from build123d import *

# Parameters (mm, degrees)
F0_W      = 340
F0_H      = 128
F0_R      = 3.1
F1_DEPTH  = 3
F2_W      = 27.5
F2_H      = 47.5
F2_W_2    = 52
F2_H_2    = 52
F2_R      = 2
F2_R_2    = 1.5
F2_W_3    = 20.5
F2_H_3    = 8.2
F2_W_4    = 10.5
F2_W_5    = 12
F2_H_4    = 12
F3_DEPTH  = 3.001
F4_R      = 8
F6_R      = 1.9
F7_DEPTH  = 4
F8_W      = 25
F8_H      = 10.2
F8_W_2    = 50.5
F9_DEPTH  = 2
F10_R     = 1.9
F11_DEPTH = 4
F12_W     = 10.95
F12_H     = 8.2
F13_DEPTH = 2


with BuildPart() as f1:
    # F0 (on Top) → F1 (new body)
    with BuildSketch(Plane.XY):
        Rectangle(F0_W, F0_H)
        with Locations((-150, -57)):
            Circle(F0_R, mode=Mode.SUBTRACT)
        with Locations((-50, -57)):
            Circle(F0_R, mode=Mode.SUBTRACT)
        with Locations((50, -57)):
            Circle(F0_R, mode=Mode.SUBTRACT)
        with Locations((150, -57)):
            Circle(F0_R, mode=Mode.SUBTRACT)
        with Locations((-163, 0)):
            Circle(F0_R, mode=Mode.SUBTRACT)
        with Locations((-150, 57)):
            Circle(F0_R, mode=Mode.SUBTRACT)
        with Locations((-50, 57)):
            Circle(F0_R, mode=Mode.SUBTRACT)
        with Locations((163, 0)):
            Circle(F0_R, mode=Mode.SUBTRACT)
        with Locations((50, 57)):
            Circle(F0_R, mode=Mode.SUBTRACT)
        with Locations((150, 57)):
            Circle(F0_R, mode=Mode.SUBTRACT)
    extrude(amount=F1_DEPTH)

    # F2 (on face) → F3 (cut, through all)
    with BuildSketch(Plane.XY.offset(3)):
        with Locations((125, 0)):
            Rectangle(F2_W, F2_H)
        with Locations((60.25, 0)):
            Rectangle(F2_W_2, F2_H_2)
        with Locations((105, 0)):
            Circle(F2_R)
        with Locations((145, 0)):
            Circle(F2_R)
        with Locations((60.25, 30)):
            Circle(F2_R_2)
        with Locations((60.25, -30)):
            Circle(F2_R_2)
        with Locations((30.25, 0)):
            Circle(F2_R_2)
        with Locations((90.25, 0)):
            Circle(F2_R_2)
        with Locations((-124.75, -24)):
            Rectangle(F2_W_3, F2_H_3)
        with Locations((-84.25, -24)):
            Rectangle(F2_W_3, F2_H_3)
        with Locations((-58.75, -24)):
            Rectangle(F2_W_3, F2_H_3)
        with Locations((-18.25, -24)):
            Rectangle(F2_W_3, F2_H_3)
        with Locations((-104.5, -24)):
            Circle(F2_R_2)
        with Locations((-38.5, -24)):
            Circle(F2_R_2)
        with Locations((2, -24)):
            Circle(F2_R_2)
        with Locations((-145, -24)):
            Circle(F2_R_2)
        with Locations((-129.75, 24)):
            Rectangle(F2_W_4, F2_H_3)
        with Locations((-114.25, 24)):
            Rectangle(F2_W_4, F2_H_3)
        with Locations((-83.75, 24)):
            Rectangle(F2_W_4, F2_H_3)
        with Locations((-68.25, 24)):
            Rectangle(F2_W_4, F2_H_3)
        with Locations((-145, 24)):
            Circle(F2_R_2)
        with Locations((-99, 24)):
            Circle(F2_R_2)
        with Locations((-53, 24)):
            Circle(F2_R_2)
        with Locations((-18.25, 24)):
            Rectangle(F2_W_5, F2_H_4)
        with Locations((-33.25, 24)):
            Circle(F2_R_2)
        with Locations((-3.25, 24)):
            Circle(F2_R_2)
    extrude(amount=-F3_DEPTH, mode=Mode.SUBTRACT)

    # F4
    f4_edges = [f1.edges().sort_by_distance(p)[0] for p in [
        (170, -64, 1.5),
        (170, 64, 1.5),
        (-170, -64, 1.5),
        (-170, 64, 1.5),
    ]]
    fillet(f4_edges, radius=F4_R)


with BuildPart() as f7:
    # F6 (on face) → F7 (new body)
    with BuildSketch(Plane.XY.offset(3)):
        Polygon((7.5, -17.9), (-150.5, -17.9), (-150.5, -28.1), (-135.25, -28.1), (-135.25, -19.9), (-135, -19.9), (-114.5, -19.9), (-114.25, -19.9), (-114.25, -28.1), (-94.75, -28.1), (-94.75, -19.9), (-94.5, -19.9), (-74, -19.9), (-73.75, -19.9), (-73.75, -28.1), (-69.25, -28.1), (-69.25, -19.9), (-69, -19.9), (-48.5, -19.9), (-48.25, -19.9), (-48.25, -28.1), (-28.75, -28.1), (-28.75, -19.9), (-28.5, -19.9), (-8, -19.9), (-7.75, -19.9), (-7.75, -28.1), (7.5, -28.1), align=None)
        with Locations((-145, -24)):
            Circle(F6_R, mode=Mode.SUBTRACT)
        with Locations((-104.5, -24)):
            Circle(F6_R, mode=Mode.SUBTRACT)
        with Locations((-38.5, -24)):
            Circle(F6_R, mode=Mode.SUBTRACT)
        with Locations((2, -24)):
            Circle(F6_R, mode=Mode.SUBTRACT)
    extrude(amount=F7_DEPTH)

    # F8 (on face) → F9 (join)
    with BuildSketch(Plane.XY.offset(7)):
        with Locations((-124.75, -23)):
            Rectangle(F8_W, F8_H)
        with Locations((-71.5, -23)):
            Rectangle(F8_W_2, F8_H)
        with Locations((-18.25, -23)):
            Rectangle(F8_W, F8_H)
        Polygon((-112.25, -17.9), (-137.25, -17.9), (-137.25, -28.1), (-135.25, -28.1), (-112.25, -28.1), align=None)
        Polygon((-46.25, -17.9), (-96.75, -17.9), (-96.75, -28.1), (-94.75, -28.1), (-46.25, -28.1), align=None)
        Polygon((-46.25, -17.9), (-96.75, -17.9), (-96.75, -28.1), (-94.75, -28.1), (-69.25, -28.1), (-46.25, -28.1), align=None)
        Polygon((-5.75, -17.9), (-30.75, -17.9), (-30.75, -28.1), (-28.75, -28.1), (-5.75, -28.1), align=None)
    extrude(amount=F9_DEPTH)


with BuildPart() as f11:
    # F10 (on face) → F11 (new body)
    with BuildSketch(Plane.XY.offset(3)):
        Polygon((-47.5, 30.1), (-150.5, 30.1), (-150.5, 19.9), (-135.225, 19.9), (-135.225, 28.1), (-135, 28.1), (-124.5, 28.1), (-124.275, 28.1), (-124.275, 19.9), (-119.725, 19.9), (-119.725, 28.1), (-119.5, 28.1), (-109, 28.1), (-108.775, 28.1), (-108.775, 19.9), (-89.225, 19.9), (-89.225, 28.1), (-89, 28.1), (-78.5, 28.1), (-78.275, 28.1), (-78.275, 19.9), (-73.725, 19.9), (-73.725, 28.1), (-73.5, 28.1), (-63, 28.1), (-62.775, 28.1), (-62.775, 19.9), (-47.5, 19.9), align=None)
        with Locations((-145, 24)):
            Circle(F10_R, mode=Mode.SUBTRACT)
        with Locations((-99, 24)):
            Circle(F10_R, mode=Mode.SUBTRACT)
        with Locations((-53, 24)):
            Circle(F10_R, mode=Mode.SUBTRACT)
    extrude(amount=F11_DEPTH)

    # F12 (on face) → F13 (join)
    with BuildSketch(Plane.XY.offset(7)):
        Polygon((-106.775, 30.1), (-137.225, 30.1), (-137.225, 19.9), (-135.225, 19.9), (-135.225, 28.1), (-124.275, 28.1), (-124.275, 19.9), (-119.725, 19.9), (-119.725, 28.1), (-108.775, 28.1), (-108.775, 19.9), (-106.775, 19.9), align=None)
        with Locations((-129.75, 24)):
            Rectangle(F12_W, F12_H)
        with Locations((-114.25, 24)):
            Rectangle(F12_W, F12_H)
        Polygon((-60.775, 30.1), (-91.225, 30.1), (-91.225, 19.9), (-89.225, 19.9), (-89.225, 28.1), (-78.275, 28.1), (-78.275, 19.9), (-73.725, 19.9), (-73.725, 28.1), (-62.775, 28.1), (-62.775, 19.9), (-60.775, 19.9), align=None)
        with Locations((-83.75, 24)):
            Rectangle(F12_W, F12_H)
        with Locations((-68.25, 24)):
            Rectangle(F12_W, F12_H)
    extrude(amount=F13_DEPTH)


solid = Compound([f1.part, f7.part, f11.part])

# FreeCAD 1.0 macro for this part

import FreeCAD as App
import Part
import Sketcher

V = App.Vector


def edges_at(feature, points):
    """Names of the edges that pass closest to the given points."""
    edges = feature.Shape.Edges
    near = lambda p: min(range(len(edges)), key=lambda i: edges[i].distToShape(Part.Vertex(*p))[0])
    return sorted({f"Edge{near(p) + 1}" for p in points})


def add_polygon(sketch, points):
    """Adds a closed chain of lines whose ends are joined by coincident constraints."""
    first, n = sketch.GeometryCount, len(points)
    for a, b in zip(points, points[1:] + points[:1]):
        sketch.addGeometry(Part.LineSegment(App.Vector(*a, 0), App.Vector(*b, 0)), False)
    for i in range(n):
        sketch.addConstraint(Sketcher.Constraint("Coincident", first + i, 2, first + (i + 1) % n, 1))

doc = App.newDocument("Part")
body = doc.addObject("PartDesign::Body", "Body")

sketch1 = doc.addObject("Sketcher::SketchObject", "Sketch")
body.addObject(sketch1)
sketch1.AttachmentSupport = (doc.XY_Plane, [""])
sketch1.MapMode = "FlatFace"
add_polygon(sketch1, [(-170, 64), (-170, -64), (170, -64), (170, 64)])
sketch1.addGeometry(Part.Circle(V(-150, -57, 0), V(0, 0, 1), 3.1), False)
sketch1.addGeometry(Part.Circle(V(-50, -57, 0), V(0, 0, 1), 3.1), False)
sketch1.addGeometry(Part.Circle(V(50, -57, 0), V(0, 0, 1), 3.1), False)
sketch1.addGeometry(Part.Circle(V(150, -57, 0), V(0, 0, 1), 3.1), False)
sketch1.addGeometry(Part.Circle(V(-163, 0, 0), V(0, 0, 1), 3.1), False)
sketch1.addGeometry(Part.Circle(V(-150, 57, 0), V(0, 0, 1), 3.1), False)
sketch1.addGeometry(Part.Circle(V(-50, 57, 0), V(0, 0, 1), 3.1), False)
sketch1.addGeometry(Part.Circle(V(163, 0, 0), V(0, 0, 1), 3.1), False)
sketch1.addGeometry(Part.Circle(V(50, 57, 0), V(0, 0, 1), 3.1), False)
sketch1.addGeometry(Part.Circle(V(150, 57, 0), V(0, 0, 1), 3.1), False)
sketch1.addConstraint(Sketcher.Constraint("Vertical", 0))
sketch1.addConstraint(Sketcher.Constraint("Horizontal", 1))
sketch1.addConstraint(Sketcher.Constraint("Vertical", 2))
sketch1.addConstraint(Sketcher.Constraint("Horizontal", 3))
sketch1.addConstraint(Sketcher.Constraint("Equal", 4, 5))
sketch1.addConstraint(Sketcher.Constraint("Equal", 5, 6))
sketch1.addConstraint(Sketcher.Constraint("Equal", 6, 7))
sketch1.addConstraint(Sketcher.Constraint("Equal", 7, 8))
sketch1.addConstraint(Sketcher.Constraint("Equal", 8, 9))
sketch1.addConstraint(Sketcher.Constraint("Equal", 9, 10))
sketch1.addConstraint(Sketcher.Constraint("Equal", 10, 11))
sketch1.addConstraint(Sketcher.Constraint("Equal", 11, 12))
sketch1.addConstraint(Sketcher.Constraint("Equal", 12, 13))
sketch1.addConstraint(Sketcher.Constraint("Symmetric", 7, 3, 9, 3, -1, 1))
sketch1.addConstraint(Sketcher.Constraint("Symmetric", 6, 3, 10, 3, -1, 1))
sketch1.addConstraint(Sketcher.Constraint("Symmetric", 8, 3, 11, 3, -1, 1))
sketch1.addConstraint(Sketcher.Constraint("Symmetric", 5, 3, 12, 3, -1, 1))
sketch1.addConstraint(Sketcher.Constraint("Symmetric", 4, 3, 13, 3, -1, 1))
sketch1.addConstraint(Sketcher.Constraint("Symmetric", 0, 2, 2, 2, -1, 1))
sketch1.addConstraint(Sketcher.Constraint("Symmetric", 5, 3, 6, 3, -2))
sketch1.addConstraint(Sketcher.Constraint("Symmetric", 4, 3, 7, 3, -2))
sketch1.addConstraint(Sketcher.Constraint("PointOnObject", 8, 3, -1))
sketch1.addConstraint(Sketcher.Constraint("Horizontal", 4, 3, 5, 3))
sketch1.addConstraint(Sketcher.Constraint("Diameter", 4, 6.2))
sketch1.addConstraint(Sketcher.Constraint("DistanceX", 1, 1, 1, 2, 340.0))
sketch1.addConstraint(Sketcher.Constraint("DistanceY", 0, 2, 0, 1, 128.0))
sketch1.addConstraint(Sketcher.Constraint("DistanceX", 4, 3, -1, 1, 150.0))
sketch1.addConstraint(Sketcher.Constraint("DistanceY", 4, 3, -1, 1, 57.0))
sketch1.addConstraint(Sketcher.Constraint("DistanceX", 5, 3, -1, 1, 50.0))
sketch1.addConstraint(Sketcher.Constraint("DistanceX", 8, 3, -1, 1, 163.0))
pad1 = doc.addObject("PartDesign::Pad", "Pad")
body.addObject(pad1)
pad1.Profile = sketch1
pad1.Length = 3

sketch2 = doc.addObject("Sketcher::SketchObject", "Sketch001")
body.addObject(sketch2)
sketch2.AttachmentSupport = (doc.XY_Plane, [""])
sketch2.MapMode = "FlatFace"
sketch2.AttachmentOffset = App.Placement(V(0, 0, 3), App.Rotation())
add_polygon(sketch2, [(111.2, 23.8), (111.2, -23.8), (138.8, -23.8), (138.8, 23.8)])
add_polygon(sketch2, [(34.2, 26), (34.2, -26), (86.2, -26), (86.2, 26)])
sketch2.addGeometry(Part.Circle(V(105, 0, 0), V(0, 0, 1), 2), False)
sketch2.addGeometry(Part.Circle(V(145, 0, 0), V(0, 0, 1), 2), False)
sketch2.addGeometry(Part.Circle(V(60.2, 30, 0), V(0, 0, 1), 1.5), False)
sketch2.addGeometry(Part.Circle(V(60.2, -30, 0), V(0, 0, 1), 1.5), False)
sketch2.addGeometry(Part.Circle(V(30.2, 0, 0), V(0, 0, 1), 1.5), False)
sketch2.addGeometry(Part.Circle(V(90.2, 0, 0), V(0, 0, 1), 1.5), False)
add_polygon(sketch2, [(-135, -19.9), (-135, -28.1), (-114.5, -28.1), (-114.5, -19.9)])
add_polygon(sketch2, [(-94.5, -19.9), (-94.5, -28.1), (-74, -28.1), (-74, -19.9)])
add_polygon(sketch2, [(-69, -19.9), (-69, -28.1), (-48.5, -28.1), (-48.5, -19.9)])
add_polygon(sketch2, [(-28.5, -19.9), (-28.5, -28.1), (-8, -28.1), (-8, -19.9)])
sketch2.addGeometry(Part.Circle(V(-104.5, -24, 0), V(0, 0, 1), 1.5), False)
sketch2.addGeometry(Part.Circle(V(-38.5, -24, 0), V(0, 0, 1), 1.5), False)
sketch2.addGeometry(Part.Circle(V(2, -24, 0), V(0, 0, 1), 1.5), False)
sketch2.addGeometry(Part.Circle(V(-145, -24, 0), V(0, 0, 1), 1.5), False)
add_polygon(sketch2, [(-135, 28.1), (-135, 19.9), (-124.5, 19.9), (-124.5, 28.1)])
add_polygon(sketch2, [(-119.5, 28.1), (-119.5, 19.9), (-109, 19.9), (-109, 28.1)])
add_polygon(sketch2, [(-89, 28.1), (-89, 19.9), (-78.5, 19.9), (-78.5, 28.1)])
add_polygon(sketch2, [(-73.5, 28.1), (-73.5, 19.9), (-63, 19.9), (-63, 28.1)])
sketch2.addGeometry(Part.Circle(V(-145, 24, 0), V(0, 0, 1), 1.5), False)
sketch2.addGeometry(Part.Circle(V(-99, 24, 0), V(0, 0, 1), 1.5), False)
sketch2.addGeometry(Part.Circle(V(-53, 24, 0), V(0, 0, 1), 1.5), False)
add_polygon(sketch2, [(-24.2, 30), (-24.2, 18), (-12.2, 18), (-12.2, 30)])
sketch2.addGeometry(Part.Circle(V(-33.2, 24, 0), V(0, 0, 1), 1.5), False)
sketch2.addGeometry(Part.Circle(V(-3.2, 24, 0), V(0, 0, 1), 1.5), False)
sketch2.addConstraint(Sketcher.Constraint("Vertical", 0))
sketch2.addConstraint(Sketcher.Constraint("Horizontal", 1))
sketch2.addConstraint(Sketcher.Constraint("Vertical", 2))
sketch2.addConstraint(Sketcher.Constraint("Horizontal", 3))
sketch2.addConstraint(Sketcher.Constraint("Vertical", 4))
sketch2.addConstraint(Sketcher.Constraint("Horizontal", 5))
sketch2.addConstraint(Sketcher.Constraint("Vertical", 6))
sketch2.addConstraint(Sketcher.Constraint("Horizontal", 7))
sketch2.addConstraint(Sketcher.Constraint("Vertical", 14))
sketch2.addConstraint(Sketcher.Constraint("Horizontal", 15))
sketch2.addConstraint(Sketcher.Constraint("Vertical", 16))
sketch2.addConstraint(Sketcher.Constraint("Horizontal", 17))
sketch2.addConstraint(Sketcher.Constraint("Vertical", 18))
sketch2.addConstraint(Sketcher.Constraint("Horizontal", 19))
sketch2.addConstraint(Sketcher.Constraint("Vertical", 20))
sketch2.addConstraint(Sketcher.Constraint("Horizontal", 21))
sketch2.addConstraint(Sketcher.Constraint("Vertical", 22))
sketch2.addConstraint(Sketcher.Constraint("Horizontal", 23))
sketch2.addConstraint(Sketcher.Constraint("Vertical", 24))
sketch2.addConstraint(Sketcher.Constraint("Horizontal", 25))
sketch2.addConstraint(Sketcher.Constraint("Vertical", 26))
sketch2.addConstraint(Sketcher.Constraint("Horizontal", 27))
sketch2.addConstraint(Sketcher.Constraint("Vertical", 28))
sketch2.addConstraint(Sketcher.Constraint("Horizontal", 29))
sketch2.addConstraint(Sketcher.Constraint("Vertical", 34))
sketch2.addConstraint(Sketcher.Constraint("Horizontal", 35))
sketch2.addConstraint(Sketcher.Constraint("Vertical", 36))
sketch2.addConstraint(Sketcher.Constraint("Horizontal", 37))
sketch2.addConstraint(Sketcher.Constraint("Vertical", 38))
sketch2.addConstraint(Sketcher.Constraint("Horizontal", 39))
sketch2.addConstraint(Sketcher.Constraint("Vertical", 40))
sketch2.addConstraint(Sketcher.Constraint("Horizontal", 41))
sketch2.addConstraint(Sketcher.Constraint("Vertical", 42))
sketch2.addConstraint(Sketcher.Constraint("Horizontal", 43))
sketch2.addConstraint(Sketcher.Constraint("Vertical", 44))
sketch2.addConstraint(Sketcher.Constraint("Horizontal", 45))
sketch2.addConstraint(Sketcher.Constraint("Vertical", 46))
sketch2.addConstraint(Sketcher.Constraint("Horizontal", 47))
sketch2.addConstraint(Sketcher.Constraint("Vertical", 48))
sketch2.addConstraint(Sketcher.Constraint("Horizontal", 49))
sketch2.addConstraint(Sketcher.Constraint("Vertical", 53))
sketch2.addConstraint(Sketcher.Constraint("Horizontal", 54))
sketch2.addConstraint(Sketcher.Constraint("Vertical", 55))
sketch2.addConstraint(Sketcher.Constraint("Horizontal", 56))
sketch2.addConstraint(Sketcher.Constraint("Equal", 8, 9))
sketch2.addConstraint(Sketcher.Constraint("Equal", 10, 11))
sketch2.addConstraint(Sketcher.Constraint("Equal", 11, 12))
sketch2.addConstraint(Sketcher.Constraint("Equal", 12, 13))
sketch2.addConstraint(Sketcher.Constraint("Equal", 13, 30))
sketch2.addConstraint(Sketcher.Constraint("Equal", 30, 31))
sketch2.addConstraint(Sketcher.Constraint("Equal", 31, 32))
sketch2.addConstraint(Sketcher.Constraint("Equal", 32, 33))
sketch2.addConstraint(Sketcher.Constraint("Equal", 33, 50))
sketch2.addConstraint(Sketcher.Constraint("Equal", 50, 51))
sketch2.addConstraint(Sketcher.Constraint("Equal", 51, 52))
sketch2.addConstraint(Sketcher.Constraint("Equal", 52, 57))
sketch2.addConstraint(Sketcher.Constraint("Equal", 57, 58))
sketch2.addConstraint(Sketcher.Constraint("Symmetric", 10, 3, 11, 3, -1))
sketch2.addConstraint(Sketcher.Constraint("Symmetric", 33, 3, 50, 3, -1))
sketch2.addConstraint(Sketcher.Constraint("Symmetric", 17, 2, 34, 2, -1))
sketch2.addConstraint(Sketcher.Constraint("PointOnObject", 8, 3, -1))
sketch2.addConstraint(Sketcher.Constraint("PointOnObject", 9, 3, -1))
sketch2.addConstraint(Sketcher.Constraint("PointOnObject", 12, 3, -1))
sketch2.addConstraint(Sketcher.Constraint("PointOnObject", 13, 3, -1))
sketch2.addConstraint(Sketcher.Constraint("Horizontal", 30, 3, 31, 3))
sketch2.addConstraint(Sketcher.Constraint("Horizontal", 31, 3, 32, 3))
sketch2.addConstraint(Sketcher.Constraint("Horizontal", 32, 3, 33, 3))
sketch2.addConstraint(Sketcher.Constraint("Horizontal", 50, 3, 51, 3))
sketch2.addConstraint(Sketcher.Constraint("Horizontal", 51, 3, 52, 3))
sketch2.addConstraint(Sketcher.Constraint("Horizontal", 52, 3, 57, 3))
sketch2.addConstraint(Sketcher.Constraint("Horizontal", 57, 3, 58, 3))
sketch2.addConstraint(Sketcher.Constraint("Horizontal", 15, 2, 18, 2))
sketch2.addConstraint(Sketcher.Constraint("Horizontal", 17, 2, 20, 2))
sketch2.addConstraint(Sketcher.Constraint("Horizontal", 19, 2, 22, 2))
sketch2.addConstraint(Sketcher.Constraint("Horizontal", 21, 2, 24, 2))
sketch2.addConstraint(Sketcher.Constraint("Horizontal", 23, 2, 26, 2))
sketch2.addConstraint(Sketcher.Constraint("Horizontal", 25, 2, 28, 2))
sketch2.addConstraint(Sketcher.Constraint("Horizontal", 35, 2, 38, 2))
sketch2.addConstraint(Sketcher.Constraint("Horizontal", 37, 2, 40, 2))
sketch2.addConstraint(Sketcher.Constraint("Horizontal", 39, 2, 42, 2))
sketch2.addConstraint(Sketcher.Constraint("Horizontal", 41, 2, 44, 2))
sketch2.addConstraint(Sketcher.Constraint("Horizontal", 43, 2, 46, 2))
sketch2.addConstraint(Sketcher.Constraint("Horizontal", 45, 2, 48, 2))
sketch2.addConstraint(Sketcher.Constraint("Horizontal", 10, 3, 55, 2))
sketch2.addConstraint(Sketcher.Constraint("Equal", 17, 19))
sketch2.addConstraint(Sketcher.Constraint("Equal", 21, 23))
sketch2.addConstraint(Sketcher.Constraint("Equal", 25, 27))
sketch2.addConstraint(Sketcher.Constraint("Equal", 37, 39))
sketch2.addConstraint(Sketcher.Constraint("Equal", 41, 43))
sketch2.addConstraint(Sketcher.Constraint("Equal", 45, 47))
sketch2.addConstraint(Sketcher.Constraint("Equal", 7, 4))
sketch2.addConstraint(Sketcher.Constraint("Equal", 28, 34))
sketch2.addConstraint(Sketcher.Constraint("Equal", 56, 53))
sketch2.addConstraint(Sketcher.Constraint("Diameter", 8, 4.0))
sketch2.addConstraint(Sketcher.Constraint("Diameter", 10, 3.0))
sketch2.addConstraint(Sketcher.Constraint("DistanceX", 5, 1, 5, 2, 52.0))
sketch2.addConstraint(Sketcher.Constraint("DistanceX", 54, 1, 54, 2, 12.0))
sketch2.addConstraint(Sketcher.Constraint("DistanceX", 1, 1, 1, 2, 27.5))
sketch2.addConstraint(Sketcher.Constraint("DistanceX", 15, 1, 15, 2, 20.5))
sketch2.addConstraint(Sketcher.Constraint("DistanceX", 35, 1, 35, 2, 10.5))
sketch2.addConstraint(Sketcher.Constraint("DistanceY", 0, 2, 0, 1, 47.5))
sketch2.addConstraint(Sketcher.Constraint("DistanceY", 14, 2, 14, 1, 8.2))
sketch2.addConstraint(Sketcher.Constraint("DistanceX", -1, 1, 8, 3, 105.0))
sketch2.addConstraint(Sketcher.Constraint("DistanceX", -1, 1, 9, 3, 145.0))
sketch2.addConstraint(Sketcher.Constraint("DistanceY", -1, 1, 10, 3, 30.0))
sketch2.addConstraint(Sketcher.Constraint("DistanceY", 30, 3, -1, 1, 24.0))
sketch2.addConstraint(Sketcher.Constraint("DistanceX", -1, 1, 32, 3, 2.0))
sketch2.addConstraint(Sketcher.Constraint("DistanceX", 33, 3, -1, 1, 145.0))
sketch2.addConstraint(Sketcher.Constraint("DistanceX", 51, 3, -1, 1, 99.0))
sketch2.addConstraint(Sketcher.Constraint("DistanceX", 52, 3, -1, 1, 53.0))
sketch2.addConstraint(Sketcher.Constraint("DistanceY", 4, 2, -1, 1, 26.0))
sketch2.addConstraint(Sketcher.Constraint("DistanceX", 14, 2, -1, 1, 135.0))
sketch2.addConstraint(Sketcher.Constraint("DistanceX", 19, 2, -1, 1, 74.0))
sketch2.addConstraint(Sketcher.Constraint("DistanceX", 22, 2, -1, 1, 69.0))
sketch2.addConstraint(Sketcher.Constraint("DistanceX", 27, 2, -1, 1, 8.0))
sketch2.addConstraint(Sketcher.Constraint("DistanceX", 39, 2, -1, 1, 109.0))
sketch2.addConstraint(Sketcher.Constraint("DistanceX", 42, 2, -1, 1, 89.0))
sketch2.addConstraint(Sketcher.Constraint("DistanceX", 47, 2, -1, 1, 63.0))
sketch2.addConstraint(Sketcher.Constraint("DistanceX", 12, 3, 10, 3, 30.0))
sketch2.addConstraint(Sketcher.Constraint("DistanceX", 10, 3, 13, 3, 30.0))
sketch2.addConstraint(Sketcher.Constraint("DistanceX", 30, 3, 31, 3, 66.0))
sketch2.addConstraint(Sketcher.Constraint("DistanceX", 57, 3, 58, 3, 30.0))
sketch2.addConstraint(Sketcher.Constraint("DistanceX", 13, 3, 0, 2, 21.0))
sketch2.addConstraint(Sketcher.Constraint("DistanceX", 4, 2, 11, 3, 26.0))
sketch2.addConstraint(Sketcher.Constraint("DistanceX", 15, 2, 30, 3, 10.0))
sketch2.addConstraint(Sketcher.Constraint("DistanceY", 16, 2, 36, 2, 48.0))
sketch2.addConstraint(Sketcher.Constraint("DistanceX", 57, 3, 53, 2, 9.0))
sketch2.addConstraint(Sketcher.Constraint("DistanceX", 57, 3, 12, 3, 63.5))
sketch2.addConstraint(Sketcher.Constraint("DistanceX", -1, 1, 10, 3, 60.25))
sketch2.addConstraint(Sketcher.Constraint("DistanceY", 0, 2, -1, 1, 23.75))
pocket1 = doc.addObject("PartDesign::Pocket", "Pocket")
body.addObject(pocket1)
pocket1.Profile = sketch2
pocket1.Type = "ThroughAll"
doc.recompute()

fillet = doc.addObject("PartDesign::Fillet", "Fillet")
body.addObject(fillet)
fillet.Base = (pocket1, edges_at(pocket1, [
    (170, -64, 1.5),
    (170, 64, 1.5),
    (-170, -64, 1.5),
    (-170, 64, 1.5),
]))
fillet.Radius = 8
body2 = doc.addObject("PartDesign::Body", "Body001")

sketch3 = doc.addObject("Sketcher::SketchObject", "Sketch002")
body2.addObject(sketch3)
sketch3.AttachmentSupport = (doc.getObject("XY_Plane001"), [""])
sketch3.MapMode = "FlatFace"
sketch3.AttachmentOffset = App.Placement(V(0, 0, 3), App.Rotation())
add_polygon(sketch3, [(7.5, -17.9), (-150.5, -17.9), (-150.5, -28.1), (-135.2, -28.1), (-135.2, -19.9), (-114.2, -19.9), (-114.2, -28.1), (-94.8, -28.1), (-94.8, -19.9), (-73.8, -19.9), (-73.8, -28.1), (-69.2, -28.1), (-69.2, -19.9), (-48.2, -19.9), (-48.2, -28.1), (-28.8, -28.1), (-28.8, -19.9), (-7.8, -19.9), (-7.8, -28.1), (7.5, -28.1)])
sketch3.addGeometry(Part.Circle(V(-145, -24, 0), V(0, 0, 1), 1.9), False)
sketch3.addGeometry(Part.Circle(V(-104.5, -24, 0), V(0, 0, 1), 1.9), False)
sketch3.addGeometry(Part.Circle(V(-38.5, -24, 0), V(0, 0, 1), 1.9), False)
sketch3.addGeometry(Part.Circle(V(2, -24, 0), V(0, 0, 1), 1.9), False)
sketch3.addConstraint(Sketcher.Constraint("Horizontal", 0))
sketch3.addConstraint(Sketcher.Constraint("Vertical", 1))
sketch3.addConstraint(Sketcher.Constraint("Horizontal", 2))
sketch3.addConstraint(Sketcher.Constraint("Vertical", 3))
sketch3.addConstraint(Sketcher.Constraint("Horizontal", 4))
sketch3.addConstraint(Sketcher.Constraint("Vertical", 5))
sketch3.addConstraint(Sketcher.Constraint("Horizontal", 6))
sketch3.addConstraint(Sketcher.Constraint("Vertical", 7))
sketch3.addConstraint(Sketcher.Constraint("Horizontal", 8))
sketch3.addConstraint(Sketcher.Constraint("Vertical", 9))
sketch3.addConstraint(Sketcher.Constraint("Horizontal", 10))
sketch3.addConstraint(Sketcher.Constraint("Vertical", 11))
sketch3.addConstraint(Sketcher.Constraint("Horizontal", 12))
sketch3.addConstraint(Sketcher.Constraint("Vertical", 13))
sketch3.addConstraint(Sketcher.Constraint("Horizontal", 14))
sketch3.addConstraint(Sketcher.Constraint("Vertical", 15))
sketch3.addConstraint(Sketcher.Constraint("Horizontal", 16))
sketch3.addConstraint(Sketcher.Constraint("Vertical", 17))
sketch3.addConstraint(Sketcher.Constraint("Horizontal", 18))
sketch3.addConstraint(Sketcher.Constraint("Vertical", 19))
sketch3.addConstraint(Sketcher.Constraint("Equal", 20, 21))
sketch3.addConstraint(Sketcher.Constraint("Equal", 21, 22))
sketch3.addConstraint(Sketcher.Constraint("Equal", 22, 23))
sketch3.addConstraint(Sketcher.Constraint("Horizontal", 20, 3, 21, 3))
sketch3.addConstraint(Sketcher.Constraint("Horizontal", 21, 3, 22, 3))
sketch3.addConstraint(Sketcher.Constraint("Horizontal", 22, 3, 23, 3))
sketch3.addConstraint(Sketcher.Constraint("Horizontal", 2, 2, 5, 2))
sketch3.addConstraint(Sketcher.Constraint("Horizontal", 4, 2, 7, 2))
sketch3.addConstraint(Sketcher.Constraint("Horizontal", 6, 2, 9, 2))
sketch3.addConstraint(Sketcher.Constraint("Horizontal", 8, 2, 11, 2))
sketch3.addConstraint(Sketcher.Constraint("Horizontal", 10, 2, 13, 2))
sketch3.addConstraint(Sketcher.Constraint("Horizontal", 12, 2, 15, 2))
sketch3.addConstraint(Sketcher.Constraint("Horizontal", 14, 2, 17, 2))
sketch3.addConstraint(Sketcher.Constraint("Equal", 4, 8))
sketch3.addConstraint(Sketcher.Constraint("Equal", 8, 12))
sketch3.addConstraint(Sketcher.Constraint("Equal", 6, 14))
sketch3.addConstraint(Sketcher.Constraint("Equal", 12, 16))
sketch3.addConstraint(Sketcher.Constraint("Equal", 2, 18))
sketch3.addConstraint(Sketcher.Constraint("Diameter", 20, 3.8))
sketch3.addConstraint(Sketcher.Constraint("DistanceX", 0, 2, 0, 1, 158.0))
sketch3.addConstraint(Sketcher.Constraint("DistanceX", 4, 1, 4, 2, 21.0))
sketch3.addConstraint(Sketcher.Constraint("DistanceX", 6, 1, 6, 2, 19.5))
sketch3.addConstraint(Sketcher.Constraint("DistanceX", 10, 1, 10, 2, 4.5))
sketch3.addConstraint(Sketcher.Constraint("DistanceY", 1, 2, 1, 1, 10.2))
sketch3.addConstraint(Sketcher.Constraint("DistanceY", 3, 1, 3, 2, 8.2))
sketch3.addConstraint(Sketcher.Constraint("DistanceX", 20, 3, -1, 1, 145.0))
sketch3.addConstraint(Sketcher.Constraint("DistanceY", 20, 3, -1, 1, 24.0))
sketch3.addConstraint(Sketcher.Constraint("DistanceX", -1, 1, 23, 3, 2.0))
sketch3.addConstraint(Sketcher.Constraint("DistanceX", 21, 3, 22, 3, 66.0))
sketch3.addConstraint(Sketcher.Constraint("DistanceX", 0, 2, 21, 3, 46.0))
sketch3.addConstraint(Sketcher.Constraint("DistanceX", 21, 3, -1, 1, 104.5))
sketch3.addConstraint(Sketcher.Constraint("DistanceY", 0, 2, -1, 1, 17.9))
pad2 = doc.addObject("PartDesign::Pad", "Pad001")
body2.addObject(pad2)
pad2.Profile = sketch3
pad2.Length = 4

sketch4 = doc.addObject("Sketcher::SketchObject", "Sketch003")
body2.addObject(sketch4)
sketch4.AttachmentSupport = (doc.getObject("XY_Plane001"), [""])
sketch4.MapMode = "FlatFace"
sketch4.AttachmentOffset = App.Placement(V(0, 0, 7), App.Rotation())
add_polygon(sketch4, [(-137, -18), (-137, -28), (-112, -28), (-112, -18)])
add_polygon(sketch4, [(-97, -18), (-97, -28), (-46, -28), (-46, -18)])
add_polygon(sketch4, [(-31, -18), (-31, -28), (-6, -28), (-6, -18)])
sketch4.addConstraint(Sketcher.Constraint("Vertical", 0))
sketch4.addConstraint(Sketcher.Constraint("Horizontal", 1))
sketch4.addConstraint(Sketcher.Constraint("Vertical", 2))
sketch4.addConstraint(Sketcher.Constraint("Horizontal", 3))
sketch4.addConstraint(Sketcher.Constraint("Vertical", 4))
sketch4.addConstraint(Sketcher.Constraint("Horizontal", 5))
sketch4.addConstraint(Sketcher.Constraint("Vertical", 6))
sketch4.addConstraint(Sketcher.Constraint("Horizontal", 7))
sketch4.addConstraint(Sketcher.Constraint("Vertical", 8))
sketch4.addConstraint(Sketcher.Constraint("Horizontal", 9))
sketch4.addConstraint(Sketcher.Constraint("Vertical", 10))
sketch4.addConstraint(Sketcher.Constraint("Horizontal", 11))
sketch4.addConstraint(Sketcher.Constraint("Horizontal", 1, 2, 4, 2))
sketch4.addConstraint(Sketcher.Constraint("Horizontal", 3, 2, 6, 2))
sketch4.addConstraint(Sketcher.Constraint("Horizontal", 5, 2, 8, 2))
sketch4.addConstraint(Sketcher.Constraint("Horizontal", 7, 2, 10, 2))
sketch4.addConstraint(Sketcher.Constraint("Equal", 3, 9))
sketch4.addConstraint(Sketcher.Constraint("DistanceX", 1, 1, 1, 2, 25.0))
sketch4.addConstraint(Sketcher.Constraint("DistanceX", 5, 1, 5, 2, 50.5))
sketch4.addConstraint(Sketcher.Constraint("DistanceY", 0, 2, 0, 1, 10.2))
sketch4.addConstraint(Sketcher.Constraint("DistanceX", 1, 2, 5, 2, 66.0))
sketch4.addConstraint(Sketcher.Constraint("DistanceX", 4, 2, 8, 2, 66.0))
sketch4.addConstraint(Sketcher.Constraint("DistanceY", 0, 2, -1, 1, 28.1))
sketch4.addConstraint(Sketcher.Constraint("DistanceX", 0, 2, -1, 1, 137.25))
pad3 = doc.addObject("PartDesign::Pad", "Pad002")
body2.addObject(pad3)
pad3.Profile = sketch4
pad3.Length = 2
body3 = doc.addObject("PartDesign::Body", "Body002")

sketch5 = doc.addObject("Sketcher::SketchObject", "Sketch004")
body3.addObject(sketch5)
sketch5.AttachmentSupport = (doc.getObject("XY_Plane002"), [""])
sketch5.MapMode = "FlatFace"
sketch5.AttachmentOffset = App.Placement(V(0, 0, 3), App.Rotation())
add_polygon(sketch5, [(-47.5, 30.1), (-150.5, 30.1), (-150.5, 19.9), (-135.2, 19.9), (-135.2, 28.1), (-124.3, 28.1), (-124.3, 19.9), (-119.7, 19.9), (-119.7, 28.1), (-108.8, 28.1), (-108.8, 19.9), (-89.2, 19.9), (-89.2, 28.1), (-78.3, 28.1), (-78.3, 19.9), (-73.7, 19.9), (-73.7, 28.1), (-62.8, 28.1), (-62.8, 19.9), (-47.5, 19.9)])
sketch5.addGeometry(Part.Circle(V(-145, 24, 0), V(0, 0, 1), 1.9), False)
sketch5.addGeometry(Part.Circle(V(-99, 24, 0), V(0, 0, 1), 1.9), False)
sketch5.addGeometry(Part.Circle(V(-53, 24, 0), V(0, 0, 1), 1.9), False)
sketch5.addConstraint(Sketcher.Constraint("Horizontal", 0))
sketch5.addConstraint(Sketcher.Constraint("Vertical", 1))
sketch5.addConstraint(Sketcher.Constraint("Horizontal", 2))
sketch5.addConstraint(Sketcher.Constraint("Vertical", 3))
sketch5.addConstraint(Sketcher.Constraint("Horizontal", 4))
sketch5.addConstraint(Sketcher.Constraint("Vertical", 5))
sketch5.addConstraint(Sketcher.Constraint("Horizontal", 6))
sketch5.addConstraint(Sketcher.Constraint("Vertical", 7))
sketch5.addConstraint(Sketcher.Constraint("Horizontal", 8))
sketch5.addConstraint(Sketcher.Constraint("Vertical", 9))
sketch5.addConstraint(Sketcher.Constraint("Horizontal", 10))
sketch5.addConstraint(Sketcher.Constraint("Vertical", 11))
sketch5.addConstraint(Sketcher.Constraint("Horizontal", 12))
sketch5.addConstraint(Sketcher.Constraint("Vertical", 13))
sketch5.addConstraint(Sketcher.Constraint("Horizontal", 14))
sketch5.addConstraint(Sketcher.Constraint("Vertical", 15))
sketch5.addConstraint(Sketcher.Constraint("Horizontal", 16))
sketch5.addConstraint(Sketcher.Constraint("Vertical", 17))
sketch5.addConstraint(Sketcher.Constraint("Horizontal", 18))
sketch5.addConstraint(Sketcher.Constraint("Vertical", 19))
sketch5.addConstraint(Sketcher.Constraint("Equal", 20, 21))
sketch5.addConstraint(Sketcher.Constraint("Equal", 21, 22))
sketch5.addConstraint(Sketcher.Constraint("Horizontal", 20, 3, 21, 3))
sketch5.addConstraint(Sketcher.Constraint("Horizontal", 21, 3, 22, 3))
sketch5.addConstraint(Sketcher.Constraint("Horizontal", 2, 2, 5, 2))
sketch5.addConstraint(Sketcher.Constraint("Horizontal", 4, 2, 7, 2))
sketch5.addConstraint(Sketcher.Constraint("Horizontal", 6, 2, 9, 2))
sketch5.addConstraint(Sketcher.Constraint("Horizontal", 8, 2, 11, 2))
sketch5.addConstraint(Sketcher.Constraint("Horizontal", 10, 2, 13, 2))
sketch5.addConstraint(Sketcher.Constraint("Horizontal", 12, 2, 15, 2))
sketch5.addConstraint(Sketcher.Constraint("Horizontal", 14, 2, 17, 2))
sketch5.addConstraint(Sketcher.Constraint("Equal", 4, 8))
sketch5.addConstraint(Sketcher.Constraint("Equal", 8, 12))
sketch5.addConstraint(Sketcher.Constraint("Equal", 6, 14))
sketch5.addConstraint(Sketcher.Constraint("Equal", 12, 16))
sketch5.addConstraint(Sketcher.Constraint("Equal", 2, 18))
sketch5.addConstraint(Sketcher.Constraint("Diameter", 20, 3.8))
sketch5.addConstraint(Sketcher.Constraint("DistanceX", 0, 2, 0, 1, 103.0))
sketch5.addConstraint(Sketcher.Constraint("DistanceY", 1, 2, 1, 1, 10.2))
sketch5.addConstraint(Sketcher.Constraint("DistanceY", 3, 1, 3, 2, 8.2))
sketch5.addConstraint(Sketcher.Constraint("DistanceX", 20, 3, -1, 1, 145.0))
sketch5.addConstraint(Sketcher.Constraint("DistanceY", -1, 1, 20, 3, 24.0))
sketch5.addConstraint(Sketcher.Constraint("DistanceX", 21, 3, -1, 1, 99.0))
sketch5.addConstraint(Sketcher.Constraint("DistanceX", 22, 3, -1, 1, 53.0))
sketch5.addConstraint(Sketcher.Constraint("DistanceX", 4, 1, 4, 2, 10.95))
sketch5.addConstraint(Sketcher.Constraint("DistanceX", 6, 1, 6, 2, 4.55))
sketch5.addConstraint(Sketcher.Constraint("DistanceX", 10, 1, 10, 2, 19.55))
sketch5.addConstraint(Sketcher.Constraint("DistanceX", 0, 2, -1, 1, 150.5))
sketch5.addConstraint(Sketcher.Constraint("DistanceY", -1, 1, 0, 2, 30.1))
pad4 = doc.addObject("PartDesign::Pad", "Pad003")
body3.addObject(pad4)
pad4.Profile = sketch5
pad4.Length = 4

sketch6 = doc.addObject("Sketcher::SketchObject", "Sketch005")
body3.addObject(sketch6)
sketch6.AttachmentSupport = (doc.getObject("XY_Plane002"), [""])
sketch6.MapMode = "FlatFace"
sketch6.AttachmentOffset = App.Placement(V(0, 0, 7), App.Rotation())
add_polygon(sketch6, [(-107, 30), (-137, 30), (-137, 20), (-107, 20)])
add_polygon(sketch6, [(-61, 30), (-91, 30), (-91, 20), (-61, 20)])
sketch6.addConstraint(Sketcher.Constraint("Horizontal", 0))
sketch6.addConstraint(Sketcher.Constraint("Vertical", 1))
sketch6.addConstraint(Sketcher.Constraint("Horizontal", 2))
sketch6.addConstraint(Sketcher.Constraint("Vertical", 3))
sketch6.addConstraint(Sketcher.Constraint("Horizontal", 4))
sketch6.addConstraint(Sketcher.Constraint("Vertical", 5))
sketch6.addConstraint(Sketcher.Constraint("Horizontal", 6))
sketch6.addConstraint(Sketcher.Constraint("Vertical", 7))
sketch6.addConstraint(Sketcher.Constraint("Horizontal", 3, 2, 4, 2))
sketch6.addConstraint(Sketcher.Constraint("Horizontal", 2, 2, 5, 2))
sketch6.addConstraint(Sketcher.Constraint("Equal", 2, 4))
sketch6.addConstraint(Sketcher.Constraint("DistanceY", 1, 2, 1, 1, 10.2))
sketch6.addConstraint(Sketcher.Constraint("DistanceX", 0, 2, 4, 2, 46.0))
sketch6.addConstraint(Sketcher.Constraint("DistanceX", 0, 2, 0, 1, 30.45))
sketch6.addConstraint(Sketcher.Constraint("DistanceY", -1, 1, 0, 2, 30.1))
sketch6.addConstraint(Sketcher.Constraint("DistanceX", 0, 2, -1, 1, 137.225))
pad5 = doc.addObject("PartDesign::Pad", "Pad004")
body3.addObject(pad5)
pad5.Profile = sketch6
pad5.Length = 2

doc.recompute()
